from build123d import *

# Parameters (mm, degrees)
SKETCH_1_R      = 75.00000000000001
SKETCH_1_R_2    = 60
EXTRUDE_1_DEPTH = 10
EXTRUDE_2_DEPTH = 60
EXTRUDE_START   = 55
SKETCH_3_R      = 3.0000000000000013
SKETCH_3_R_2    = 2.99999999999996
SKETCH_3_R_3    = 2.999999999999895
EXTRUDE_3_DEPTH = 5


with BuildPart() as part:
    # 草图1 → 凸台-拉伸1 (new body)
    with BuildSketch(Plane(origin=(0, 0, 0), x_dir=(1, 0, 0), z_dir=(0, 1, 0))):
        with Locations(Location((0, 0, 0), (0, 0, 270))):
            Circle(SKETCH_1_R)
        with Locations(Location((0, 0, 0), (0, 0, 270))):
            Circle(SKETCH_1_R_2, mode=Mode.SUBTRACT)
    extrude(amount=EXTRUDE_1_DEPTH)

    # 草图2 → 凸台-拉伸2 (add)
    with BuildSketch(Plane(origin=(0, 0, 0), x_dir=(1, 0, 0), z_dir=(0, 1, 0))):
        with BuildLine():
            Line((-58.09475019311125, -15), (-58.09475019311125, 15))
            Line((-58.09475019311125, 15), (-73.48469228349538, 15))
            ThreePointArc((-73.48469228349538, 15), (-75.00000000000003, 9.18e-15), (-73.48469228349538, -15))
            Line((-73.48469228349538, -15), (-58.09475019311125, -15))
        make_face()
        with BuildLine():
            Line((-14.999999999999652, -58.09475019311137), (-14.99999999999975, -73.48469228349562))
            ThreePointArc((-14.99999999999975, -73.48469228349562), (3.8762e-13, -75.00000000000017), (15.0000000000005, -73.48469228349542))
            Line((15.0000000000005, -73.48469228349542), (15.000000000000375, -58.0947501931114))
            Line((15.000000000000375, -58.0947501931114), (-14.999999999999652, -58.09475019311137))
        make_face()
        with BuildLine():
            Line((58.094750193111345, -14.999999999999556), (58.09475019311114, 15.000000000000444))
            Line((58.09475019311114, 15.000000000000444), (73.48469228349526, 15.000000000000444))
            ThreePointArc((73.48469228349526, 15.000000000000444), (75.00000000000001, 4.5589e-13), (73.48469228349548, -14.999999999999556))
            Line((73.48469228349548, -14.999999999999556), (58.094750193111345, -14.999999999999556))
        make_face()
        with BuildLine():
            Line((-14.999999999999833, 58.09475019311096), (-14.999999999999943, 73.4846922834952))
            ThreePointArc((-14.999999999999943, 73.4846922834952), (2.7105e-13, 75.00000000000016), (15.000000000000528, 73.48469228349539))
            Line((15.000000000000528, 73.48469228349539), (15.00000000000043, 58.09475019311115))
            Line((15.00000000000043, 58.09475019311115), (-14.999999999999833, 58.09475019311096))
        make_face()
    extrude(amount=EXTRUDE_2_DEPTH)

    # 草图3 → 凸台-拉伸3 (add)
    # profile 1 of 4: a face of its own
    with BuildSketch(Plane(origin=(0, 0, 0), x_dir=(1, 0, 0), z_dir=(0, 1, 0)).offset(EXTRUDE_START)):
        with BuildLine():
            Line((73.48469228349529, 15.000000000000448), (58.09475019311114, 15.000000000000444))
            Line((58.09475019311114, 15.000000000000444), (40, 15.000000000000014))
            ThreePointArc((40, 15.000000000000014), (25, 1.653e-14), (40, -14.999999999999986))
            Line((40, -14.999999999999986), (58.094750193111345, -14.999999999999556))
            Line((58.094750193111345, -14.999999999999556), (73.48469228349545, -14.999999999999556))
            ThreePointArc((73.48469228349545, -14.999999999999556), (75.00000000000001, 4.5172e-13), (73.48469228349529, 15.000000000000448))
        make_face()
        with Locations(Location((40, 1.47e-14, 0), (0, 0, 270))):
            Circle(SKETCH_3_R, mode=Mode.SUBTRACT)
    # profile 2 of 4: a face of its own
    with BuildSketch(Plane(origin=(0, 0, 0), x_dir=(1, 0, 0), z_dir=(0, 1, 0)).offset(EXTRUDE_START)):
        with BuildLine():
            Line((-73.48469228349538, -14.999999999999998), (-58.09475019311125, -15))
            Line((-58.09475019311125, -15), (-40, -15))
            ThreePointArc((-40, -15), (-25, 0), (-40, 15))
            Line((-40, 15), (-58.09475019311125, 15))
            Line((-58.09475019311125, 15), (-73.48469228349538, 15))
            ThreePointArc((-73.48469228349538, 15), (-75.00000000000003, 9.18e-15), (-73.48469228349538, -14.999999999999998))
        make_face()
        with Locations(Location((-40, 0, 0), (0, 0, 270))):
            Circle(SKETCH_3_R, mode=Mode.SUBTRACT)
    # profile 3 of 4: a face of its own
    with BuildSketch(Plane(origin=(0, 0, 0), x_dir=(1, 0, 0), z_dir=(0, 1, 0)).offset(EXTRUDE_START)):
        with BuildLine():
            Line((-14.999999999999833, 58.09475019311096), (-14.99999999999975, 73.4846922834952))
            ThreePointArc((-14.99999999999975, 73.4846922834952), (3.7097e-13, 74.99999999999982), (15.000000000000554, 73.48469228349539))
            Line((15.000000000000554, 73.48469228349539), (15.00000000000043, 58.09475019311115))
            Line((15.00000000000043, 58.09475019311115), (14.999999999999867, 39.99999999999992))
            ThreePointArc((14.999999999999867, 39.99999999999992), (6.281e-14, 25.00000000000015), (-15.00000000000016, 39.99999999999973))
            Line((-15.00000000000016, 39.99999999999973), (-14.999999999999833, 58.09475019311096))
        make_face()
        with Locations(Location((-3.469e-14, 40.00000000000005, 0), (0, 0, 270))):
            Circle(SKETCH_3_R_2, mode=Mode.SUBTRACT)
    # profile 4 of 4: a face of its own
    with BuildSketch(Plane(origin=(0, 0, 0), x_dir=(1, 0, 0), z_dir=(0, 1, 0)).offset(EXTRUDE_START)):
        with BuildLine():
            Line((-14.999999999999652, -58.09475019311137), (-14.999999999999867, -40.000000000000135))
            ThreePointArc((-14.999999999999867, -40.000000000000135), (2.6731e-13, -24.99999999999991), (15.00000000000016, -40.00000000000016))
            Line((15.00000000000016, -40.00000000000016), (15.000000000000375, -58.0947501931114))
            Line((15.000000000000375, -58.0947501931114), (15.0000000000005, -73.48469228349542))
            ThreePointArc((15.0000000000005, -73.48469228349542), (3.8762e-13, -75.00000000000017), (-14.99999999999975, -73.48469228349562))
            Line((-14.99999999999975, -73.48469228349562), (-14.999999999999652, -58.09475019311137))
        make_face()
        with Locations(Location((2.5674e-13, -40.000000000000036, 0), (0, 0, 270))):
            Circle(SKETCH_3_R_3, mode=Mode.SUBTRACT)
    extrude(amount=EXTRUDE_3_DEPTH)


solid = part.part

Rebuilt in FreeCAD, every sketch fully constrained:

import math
import FreeCAD as App
import Part
import Sketcher

doc = App.newDocument("Part")
params = doc.addObject("Spreadsheet::Sheet", "Params")
for row, (alias, value) in enumerate([
    ("sketch1_diameter", "150 mm"),
    ("sketch1_diameter2", "120 mm"),
    ("pad1_length", "10 mm"),
    ("sketch2_radius", "75 mm"),
    ("sketch2_width", "30 mm"),
    ("pad2_length", "60 mm"),
    ("sketch3_diameter", "6 mm"),
    ("sketch3_radius", "15 mm"),
    ("sketch3_radius2", "75 mm"),
    ("pad3_length", "5 mm"),
], start=1):
    params.set(f"A{row}", alias)
    params.set(f"B{row}", "=" + value)
    params.setAlias(f"B{row}", alias)

body = doc.addObject("PartDesign::Body", "Body")

# Sketch on XZ plane
sketch1 = doc.addObject("Sketcher::SketchObject", "Sketch")
body.addObject(sketch1)
sketch1.AttachmentSupport = (doc.XZ_Plane, [""])
sketch1.MapMode = "FlatFace"
sketch1.addGeometry([
    Part.Circle(App.Vector(0, 0, 0), App.Vector(0, 0, 1), 75),
    Part.Circle(App.Vector(0, 0, 0), App.Vector(0, 0, 1), 60),
], False)
sketch1.addConstraint([
    Sketcher.Constraint("Coincident", 0, 3, -1, 1),
    Sketcher.Constraint("Coincident", 1, 3, -1, 1),
    Sketcher.Constraint("Diameter", 0, 150.0),
    Sketcher.Constraint("Diameter", 1, 120.0),
])
sketch1.setExpression("Constraints[2]", "Params.sketch1_diameter")
sketch1.setExpression("Constraints[3]", "Params.sketch1_diameter2")
pad1 = doc.addObject("PartDesign::Pad", "Pad")
body.addObject(pad1)
pad1.Profile = sketch1
pad1.setExpression("Length", "Params.pad1_length")
pad1.Reversed = True

# Sketch on XZ plane
sketch2 = doc.addObject("Sketcher::SketchObject", "Sketch001")
body.addObject(sketch2)
sketch2.AttachmentSupport = (doc.XZ_Plane, [""])
sketch2.MapMode = "FlatFace"
sketch2.addGeometry([
    Part.LineSegment(App.Vector(-58, 15, 0), App.Vector(-58, -15, 0)),  # 0
    Part.LineSegment(App.Vector(-58, -15, 0), App.Vector(-73, -15, 0)),  # 1
    Part.ArcOfCircle(Part.Circle(App.Vector(0, 0, 0), App.Vector(0, 0, 1), 75), math.radians(168), math.radians(192)),  # 2
    Part.LineSegment(App.Vector(-73, 15, 0), App.Vector(-58, 15, 0)),  # 3
    Part.LineSegment(App.Vector(-15, 58, 0), App.Vector(-15, 73, 0)),  # 4
    Part.ArcOfCircle(Part.Circle(App.Vector(0, 0, 0), App.Vector(0, 0, 1), 75), math.radians(78), math.radians(102)),  # 5
    Part.LineSegment(App.Vector(15, 73, 0), App.Vector(15, 58, 0)),  # 6
    Part.LineSegment(App.Vector(15, 58, 0), App.Vector(-15, 58, 0)),  # 7
    Part.LineSegment(App.Vector(58, -15, 0), App.Vector(58, 15, 0)),  # 8
    Part.LineSegment(App.Vector(58, 15, 0), App.Vector(73, 15, 0)),  # 9
    Part.ArcOfCircle(Part.Circle(App.Vector(0, 0, 0), App.Vector(0, 0, 1), 75), math.radians(-12), math.radians(12)),  # 10
    Part.LineSegment(App.Vector(73, -15, 0), App.Vector(58, -15, 0)),  # 11
    Part.LineSegment(App.Vector(-15, -73, 0), App.Vector(-15, -58, 0)),  # 12
    Part.LineSegment(App.Vector(-15, -58, 0), App.Vector(15, -58, 0)),  # 13
    Part.LineSegment(App.Vector(15, -58, 0), App.Vector(15, -73, 0)),  # 14
    Part.ArcOfCircle(Part.Circle(App.Vector(0, 0, 0), App.Vector(0, 0, 1), 75), math.radians(-102), math.radians(-78)),  # 15
], False)
sketch2.addConstraint([
    Sketcher.Constraint("Coincident", 0, 2, 1, 1),
    Sketcher.Constraint("Coincident", 1, 2, 2, 2),
    Sketcher.Constraint("Coincident", 2, 1, 3, 1),
    Sketcher.Constraint("Coincident", 3, 2, 0, 1),
    Sketcher.Constraint("Coincident", 4, 2, 5, 2),
    Sketcher.Constraint("Coincident", 5, 1, 6, 1),
    Sketcher.Constraint("Coincident", 6, 2, 7, 1),
    Sketcher.Constraint("Coincident", 7, 2, 4, 1),
    Sketcher.Constraint("Coincident", 8, 2, 9, 1),
    Sketcher.Constraint("Coincident", 9, 2, 10, 2),
    Sketcher.Constraint("Coincident", 10, 1, 11, 1),
    Sketcher.Constraint("Coincident", 11, 2, 8, 1),
    Sketcher.Constraint("Coincident", 12, 2, 13, 1),
    Sketcher.Constraint("Coincident", 13, 2, 14, 1),
    Sketcher.Constraint("Coincident", 14, 2, 15, 2),
    Sketcher.Constraint("Coincident", 15, 1, 12, 1),
    Sketcher.Constraint("Vertical", 0),
    Sketcher.Constraint("Horizontal", 1),
    Sketcher.Constraint("Horizontal", 3),
    Sketcher.Constraint("Vertical", 4),
    Sketcher.Constraint("Vertical", 6),
    Sketcher.Constraint("Horizontal", 7),
    Sketcher.Constraint("Vertical", 8),
    Sketcher.Constraint("Horizontal", 9),
    Sketcher.Constraint("Horizontal", 11),
    Sketcher.Constraint("Vertical", 12),
    Sketcher.Constraint("Horizontal", 13),
    Sketcher.Constraint("Vertical", 14),
    Sketcher.Constraint("Coincident", 2, 3, -1, 1),
    Sketcher.Constraint("Coincident", 5, 3, -1, 1),
    Sketcher.Constraint("Coincident", 10, 3, -1, 1),
    Sketcher.Constraint("Coincident", 15, 3, -1, 1),
    Sketcher.Constraint("Equal", 2, 5),
    Sketcher.Constraint("Equal", 5, 10),
    Sketcher.Constraint("Equal", 10, 15),
    Sketcher.Constraint("Symmetric", 0, 2, 8, 2, -1, 1),
    Sketcher.Constraint("Symmetric", 6, 2, 12, 2, -1, 1),
    Sketcher.Constraint("Horizontal", 4, 2, 5, 1),
    Sketcher.Constraint("Horizontal", 3, 2, 8, 2),
    Sketcher.Constraint("Horizontal", 1, 2, 10, 1),
    Sketcher.Constraint("Horizontal", 14, 2, 15, 1),
    Sketcher.Constraint("Equal", 13, 0),
    Sketcher.Constraint("Equal", 11, 4),
    Sketcher.Constraint("Radius", 2, 75.0),
    Sketcher.Constraint("DistanceX", 7, 2, 7, 1, 30.0),
    Sketcher.Constraint("DistanceX", 1, 2, 1, 1, 15.389942),
])
sketch2.setExpression("Constraints[43]", "Params.sketch2_radius")
sketch2.setExpression("Constraints[44]", "Params.sketch2_width")
pad2 = doc.addObject("PartDesign::Pad", "Pad001")
body.addObject(pad2)
pad2.Profile = sketch2
pad2.setExpression("Length", "Params.pad2_length")
pad2.Reversed = True

# Sketch on XZ plane
sketch3 = doc.addObject("Sketcher::SketchObject", "Sketch002")
body.addObject(sketch3)
sketch3.AttachmentSupport = (doc.XZ_Plane, [""])
sketch3.MapMode = "FlatFace"
sketch3.AttachmentOffset = App.Placement(App.Vector(0, 0, -55), App.Rotation())
sketch3.addGeometry([
    Part.LineSegment(App.Vector(73.5, -15, 0), App.Vector(40, -15, 0)),  # 0
    Part.ArcOfCircle(Part.Circle(App.Vector(40, 0, 0), App.Vector(0, 0, 1), 15), math.radians(90), math.radians(270)),  # 1
    Part.LineSegment(App.Vector(40, 15, 0), App.Vector(73.5, 15, 0)),  # 2
    Part.ArcOfCircle(Part.Circle(App.Vector(0, 0, 0), App.Vector(0, 0, 1), 75), math.radians(-12), math.radians(12)),  # 3
    Part.Circle(App.Vector(40, 0, 0), App.Vector(0, 0, 1), 3),  # 4
    Part.LineSegment(App.Vector(-73.5, 15, 0), App.Vector(-40, 15, 0)),  # 5
    Part.ArcOfCircle(Part.Circle(App.Vector(-40, 0, 0), App.Vector(0, 0, 1), 15), math.radians(-90), math.radians(90)),  # 6
    Part.LineSegment(App.Vector(-40, -15, 0), App.Vector(-73.5, -15, 0)),  # 7
    Part.ArcOfCircle(Part.Circle(App.Vector(0, 0, 0), App.Vector(0, 0, 1), 75), math.radians(168), math.radians(192)),  # 8
    Part.Circle(App.Vector(-40, 0, 0), App.Vector(0, 0, 1), 3),  # 9
    Part.ArcOfCircle(Part.Circle(App.Vector(0, 0, 0), App.Vector(0, 0, 1), 75), math.radians(-102), math.radians(-78)),  # 10
    Part.LineSegment(App.Vector(-15, -73.5, 0), App.Vector(-15, -40, 0)),  # 11
    Part.ArcOfCircle(Part.Circle(App.Vector(0, -40, 0), App.Vector(0, 0, 1), 15), math.radians(0), math.radians(180)),  # 12
    Part.LineSegment(App.Vector(15, -40, 0), App.Vector(15, -73.5, 0)),  # 13
    Part.Circle(App.Vector(0, -40, 0), App.Vector(0, 0, 1), 3),  # 14
    Part.ArcOfCircle(Part.Circle(App.Vector(0, 40, 0), App.Vector(0, 0, 1), 15), math.radians(180), math.radians(360)),  # 15
    Part.LineSegment(App.Vector(-15, 40, 0), App.Vector(-15, 73.5, 0)),  # 16
    Part.ArcOfCircle(Part.Circle(App.Vector(0, 0, 0), App.Vector(0, 0, 1), 75), math.radians(78), math.radians(102)),  # 17
    Part.LineSegment(App.Vector(15, 73.5, 0), App.Vector(15, 40, 0)),  # 18
    Part.Circle(App.Vector(0, 40, 0), App.Vector(0, 0, 1), 3),  # 19
], False)
sketch3.addConstraint([
    Sketcher.Constraint("Tangent", 0, 2, 1, 2),
    Sketcher.Constraint("Tangent", 1, 1, 2, 1),
    Sketcher.Constraint("Coincident", 2, 2, 3, 2),
    Sketcher.Constraint("Coincident", 3, 1, 0, 1),
    Sketcher.Constraint("Tangent", 5, 2, 6, 2),
    Sketcher.Constraint("Tangent", 6, 1, 7, 1),
    Sketcher.Constraint("Coincident", 7, 2, 8, 2),
    Sketcher.Constraint("Coincident", 8, 1, 5, 1),
    Sketcher.Constraint("Coincident", 10, 1, 11, 1),
    Sketcher.Constraint("Tangent", 11, 2, 12, 2),
    Sketcher.Constraint("Tangent", 12, 1, 13, 1),
    Sketcher.Constraint("Coincident", 13, 2, 10, 2),
    Sketcher.Constraint("Tangent", 15, 1, 16, 1),
    Sketcher.Constraint("Coincident", 16, 2, 17, 2),
    Sketcher.Constraint("Coincident", 17, 1, 18, 1),
    Sketcher.Constraint("Tangent", 18, 2, 15, 2),
    Sketcher.Constraint("Horizontal", 0),
    Sketcher.Constraint("Horizontal", 2),
    Sketcher.Constraint("Horizontal", 5),
    Sketcher.Constraint("Horizontal", 7),
    Sketcher.Constraint("Vertical", 11),
    Sketcher.Constraint("Vertical", 13),
    Sketcher.Constraint("Vertical", 16),
    Sketcher.Constraint("Vertical", 18),
    Sketcher.Constraint("Coincident", 3, 3, -1, 1),
    Sketcher.Constraint("Coincident", 8, 3, -1, 1),
    Sketcher.Constraint("Coincident", 10, 3, -1, 1),
    Sketcher.Constraint("Coincident", 17, 3, -1, 1),
    Sketcher.Constraint("Coincident", 4, 3, 1, 3),
    Sketcher.Constraint("Coincident", 9, 3, 6, 3),
    Sketcher.Constraint("Coincident", 14, 3, 12, 3),
    Sketcher.Constraint("Coincident", 19, 3, 15, 3),
    Sketcher.Constraint("Equal", 1, 6),
    Sketcher.Constraint("Equal", 3, 8),
    Sketcher.Constraint("Equal", 4, 9),
    Sketcher.Constraint("Equal", 8, 10),
    Sketcher.Constraint("Equal", 6, 12),
    Sketcher.Constraint("Equal", 9, 14),
    Sketcher.Constraint("Equal", 12, 15),
    Sketcher.Constraint("Equal", 10, 17),
    Sketcher.Constraint("Equal", 14, 19),
    Sketcher.Constraint("Symmetric", 1, 3, 6, 3, -1, 1),
    Sketcher.Constraint("Symmetric", 12, 3, 15, 3, -1, 1),
    Sketcher.Constraint("PointOnObject", 1, 3, -1),
    Sketcher.Constraint("PointOnObject", 12, 3, -2),
    Sketcher.Constraint("Equal", 7, 11),
    Sketcher.Constraint("Diameter", 4, 6.0),
    Sketcher.Constraint("Radius", 1, 15.0),
    Sketcher.Constraint("Radius", 3, 75.0),
    Sketcher.Constraint("DistanceX", -1, 1, 1, 3, 40.0),
])
sketch3.setExpression("Constraints[46]", "Params.sketch3_diameter")
sketch3.setExpression("Constraints[47]", "Params.sketch3_radius")
sketch3.setExpression("Constraints[48]", "Params.sketch3_radius2")
pad3 = doc.addObject("PartDesign::Pad", "Pad002")
body.addObject(pad3)
pad3.Profile = sketch3
pad3.setExpression("Length", "Params.pad3_length")
pad3.Reversed = True

doc.recompute()
